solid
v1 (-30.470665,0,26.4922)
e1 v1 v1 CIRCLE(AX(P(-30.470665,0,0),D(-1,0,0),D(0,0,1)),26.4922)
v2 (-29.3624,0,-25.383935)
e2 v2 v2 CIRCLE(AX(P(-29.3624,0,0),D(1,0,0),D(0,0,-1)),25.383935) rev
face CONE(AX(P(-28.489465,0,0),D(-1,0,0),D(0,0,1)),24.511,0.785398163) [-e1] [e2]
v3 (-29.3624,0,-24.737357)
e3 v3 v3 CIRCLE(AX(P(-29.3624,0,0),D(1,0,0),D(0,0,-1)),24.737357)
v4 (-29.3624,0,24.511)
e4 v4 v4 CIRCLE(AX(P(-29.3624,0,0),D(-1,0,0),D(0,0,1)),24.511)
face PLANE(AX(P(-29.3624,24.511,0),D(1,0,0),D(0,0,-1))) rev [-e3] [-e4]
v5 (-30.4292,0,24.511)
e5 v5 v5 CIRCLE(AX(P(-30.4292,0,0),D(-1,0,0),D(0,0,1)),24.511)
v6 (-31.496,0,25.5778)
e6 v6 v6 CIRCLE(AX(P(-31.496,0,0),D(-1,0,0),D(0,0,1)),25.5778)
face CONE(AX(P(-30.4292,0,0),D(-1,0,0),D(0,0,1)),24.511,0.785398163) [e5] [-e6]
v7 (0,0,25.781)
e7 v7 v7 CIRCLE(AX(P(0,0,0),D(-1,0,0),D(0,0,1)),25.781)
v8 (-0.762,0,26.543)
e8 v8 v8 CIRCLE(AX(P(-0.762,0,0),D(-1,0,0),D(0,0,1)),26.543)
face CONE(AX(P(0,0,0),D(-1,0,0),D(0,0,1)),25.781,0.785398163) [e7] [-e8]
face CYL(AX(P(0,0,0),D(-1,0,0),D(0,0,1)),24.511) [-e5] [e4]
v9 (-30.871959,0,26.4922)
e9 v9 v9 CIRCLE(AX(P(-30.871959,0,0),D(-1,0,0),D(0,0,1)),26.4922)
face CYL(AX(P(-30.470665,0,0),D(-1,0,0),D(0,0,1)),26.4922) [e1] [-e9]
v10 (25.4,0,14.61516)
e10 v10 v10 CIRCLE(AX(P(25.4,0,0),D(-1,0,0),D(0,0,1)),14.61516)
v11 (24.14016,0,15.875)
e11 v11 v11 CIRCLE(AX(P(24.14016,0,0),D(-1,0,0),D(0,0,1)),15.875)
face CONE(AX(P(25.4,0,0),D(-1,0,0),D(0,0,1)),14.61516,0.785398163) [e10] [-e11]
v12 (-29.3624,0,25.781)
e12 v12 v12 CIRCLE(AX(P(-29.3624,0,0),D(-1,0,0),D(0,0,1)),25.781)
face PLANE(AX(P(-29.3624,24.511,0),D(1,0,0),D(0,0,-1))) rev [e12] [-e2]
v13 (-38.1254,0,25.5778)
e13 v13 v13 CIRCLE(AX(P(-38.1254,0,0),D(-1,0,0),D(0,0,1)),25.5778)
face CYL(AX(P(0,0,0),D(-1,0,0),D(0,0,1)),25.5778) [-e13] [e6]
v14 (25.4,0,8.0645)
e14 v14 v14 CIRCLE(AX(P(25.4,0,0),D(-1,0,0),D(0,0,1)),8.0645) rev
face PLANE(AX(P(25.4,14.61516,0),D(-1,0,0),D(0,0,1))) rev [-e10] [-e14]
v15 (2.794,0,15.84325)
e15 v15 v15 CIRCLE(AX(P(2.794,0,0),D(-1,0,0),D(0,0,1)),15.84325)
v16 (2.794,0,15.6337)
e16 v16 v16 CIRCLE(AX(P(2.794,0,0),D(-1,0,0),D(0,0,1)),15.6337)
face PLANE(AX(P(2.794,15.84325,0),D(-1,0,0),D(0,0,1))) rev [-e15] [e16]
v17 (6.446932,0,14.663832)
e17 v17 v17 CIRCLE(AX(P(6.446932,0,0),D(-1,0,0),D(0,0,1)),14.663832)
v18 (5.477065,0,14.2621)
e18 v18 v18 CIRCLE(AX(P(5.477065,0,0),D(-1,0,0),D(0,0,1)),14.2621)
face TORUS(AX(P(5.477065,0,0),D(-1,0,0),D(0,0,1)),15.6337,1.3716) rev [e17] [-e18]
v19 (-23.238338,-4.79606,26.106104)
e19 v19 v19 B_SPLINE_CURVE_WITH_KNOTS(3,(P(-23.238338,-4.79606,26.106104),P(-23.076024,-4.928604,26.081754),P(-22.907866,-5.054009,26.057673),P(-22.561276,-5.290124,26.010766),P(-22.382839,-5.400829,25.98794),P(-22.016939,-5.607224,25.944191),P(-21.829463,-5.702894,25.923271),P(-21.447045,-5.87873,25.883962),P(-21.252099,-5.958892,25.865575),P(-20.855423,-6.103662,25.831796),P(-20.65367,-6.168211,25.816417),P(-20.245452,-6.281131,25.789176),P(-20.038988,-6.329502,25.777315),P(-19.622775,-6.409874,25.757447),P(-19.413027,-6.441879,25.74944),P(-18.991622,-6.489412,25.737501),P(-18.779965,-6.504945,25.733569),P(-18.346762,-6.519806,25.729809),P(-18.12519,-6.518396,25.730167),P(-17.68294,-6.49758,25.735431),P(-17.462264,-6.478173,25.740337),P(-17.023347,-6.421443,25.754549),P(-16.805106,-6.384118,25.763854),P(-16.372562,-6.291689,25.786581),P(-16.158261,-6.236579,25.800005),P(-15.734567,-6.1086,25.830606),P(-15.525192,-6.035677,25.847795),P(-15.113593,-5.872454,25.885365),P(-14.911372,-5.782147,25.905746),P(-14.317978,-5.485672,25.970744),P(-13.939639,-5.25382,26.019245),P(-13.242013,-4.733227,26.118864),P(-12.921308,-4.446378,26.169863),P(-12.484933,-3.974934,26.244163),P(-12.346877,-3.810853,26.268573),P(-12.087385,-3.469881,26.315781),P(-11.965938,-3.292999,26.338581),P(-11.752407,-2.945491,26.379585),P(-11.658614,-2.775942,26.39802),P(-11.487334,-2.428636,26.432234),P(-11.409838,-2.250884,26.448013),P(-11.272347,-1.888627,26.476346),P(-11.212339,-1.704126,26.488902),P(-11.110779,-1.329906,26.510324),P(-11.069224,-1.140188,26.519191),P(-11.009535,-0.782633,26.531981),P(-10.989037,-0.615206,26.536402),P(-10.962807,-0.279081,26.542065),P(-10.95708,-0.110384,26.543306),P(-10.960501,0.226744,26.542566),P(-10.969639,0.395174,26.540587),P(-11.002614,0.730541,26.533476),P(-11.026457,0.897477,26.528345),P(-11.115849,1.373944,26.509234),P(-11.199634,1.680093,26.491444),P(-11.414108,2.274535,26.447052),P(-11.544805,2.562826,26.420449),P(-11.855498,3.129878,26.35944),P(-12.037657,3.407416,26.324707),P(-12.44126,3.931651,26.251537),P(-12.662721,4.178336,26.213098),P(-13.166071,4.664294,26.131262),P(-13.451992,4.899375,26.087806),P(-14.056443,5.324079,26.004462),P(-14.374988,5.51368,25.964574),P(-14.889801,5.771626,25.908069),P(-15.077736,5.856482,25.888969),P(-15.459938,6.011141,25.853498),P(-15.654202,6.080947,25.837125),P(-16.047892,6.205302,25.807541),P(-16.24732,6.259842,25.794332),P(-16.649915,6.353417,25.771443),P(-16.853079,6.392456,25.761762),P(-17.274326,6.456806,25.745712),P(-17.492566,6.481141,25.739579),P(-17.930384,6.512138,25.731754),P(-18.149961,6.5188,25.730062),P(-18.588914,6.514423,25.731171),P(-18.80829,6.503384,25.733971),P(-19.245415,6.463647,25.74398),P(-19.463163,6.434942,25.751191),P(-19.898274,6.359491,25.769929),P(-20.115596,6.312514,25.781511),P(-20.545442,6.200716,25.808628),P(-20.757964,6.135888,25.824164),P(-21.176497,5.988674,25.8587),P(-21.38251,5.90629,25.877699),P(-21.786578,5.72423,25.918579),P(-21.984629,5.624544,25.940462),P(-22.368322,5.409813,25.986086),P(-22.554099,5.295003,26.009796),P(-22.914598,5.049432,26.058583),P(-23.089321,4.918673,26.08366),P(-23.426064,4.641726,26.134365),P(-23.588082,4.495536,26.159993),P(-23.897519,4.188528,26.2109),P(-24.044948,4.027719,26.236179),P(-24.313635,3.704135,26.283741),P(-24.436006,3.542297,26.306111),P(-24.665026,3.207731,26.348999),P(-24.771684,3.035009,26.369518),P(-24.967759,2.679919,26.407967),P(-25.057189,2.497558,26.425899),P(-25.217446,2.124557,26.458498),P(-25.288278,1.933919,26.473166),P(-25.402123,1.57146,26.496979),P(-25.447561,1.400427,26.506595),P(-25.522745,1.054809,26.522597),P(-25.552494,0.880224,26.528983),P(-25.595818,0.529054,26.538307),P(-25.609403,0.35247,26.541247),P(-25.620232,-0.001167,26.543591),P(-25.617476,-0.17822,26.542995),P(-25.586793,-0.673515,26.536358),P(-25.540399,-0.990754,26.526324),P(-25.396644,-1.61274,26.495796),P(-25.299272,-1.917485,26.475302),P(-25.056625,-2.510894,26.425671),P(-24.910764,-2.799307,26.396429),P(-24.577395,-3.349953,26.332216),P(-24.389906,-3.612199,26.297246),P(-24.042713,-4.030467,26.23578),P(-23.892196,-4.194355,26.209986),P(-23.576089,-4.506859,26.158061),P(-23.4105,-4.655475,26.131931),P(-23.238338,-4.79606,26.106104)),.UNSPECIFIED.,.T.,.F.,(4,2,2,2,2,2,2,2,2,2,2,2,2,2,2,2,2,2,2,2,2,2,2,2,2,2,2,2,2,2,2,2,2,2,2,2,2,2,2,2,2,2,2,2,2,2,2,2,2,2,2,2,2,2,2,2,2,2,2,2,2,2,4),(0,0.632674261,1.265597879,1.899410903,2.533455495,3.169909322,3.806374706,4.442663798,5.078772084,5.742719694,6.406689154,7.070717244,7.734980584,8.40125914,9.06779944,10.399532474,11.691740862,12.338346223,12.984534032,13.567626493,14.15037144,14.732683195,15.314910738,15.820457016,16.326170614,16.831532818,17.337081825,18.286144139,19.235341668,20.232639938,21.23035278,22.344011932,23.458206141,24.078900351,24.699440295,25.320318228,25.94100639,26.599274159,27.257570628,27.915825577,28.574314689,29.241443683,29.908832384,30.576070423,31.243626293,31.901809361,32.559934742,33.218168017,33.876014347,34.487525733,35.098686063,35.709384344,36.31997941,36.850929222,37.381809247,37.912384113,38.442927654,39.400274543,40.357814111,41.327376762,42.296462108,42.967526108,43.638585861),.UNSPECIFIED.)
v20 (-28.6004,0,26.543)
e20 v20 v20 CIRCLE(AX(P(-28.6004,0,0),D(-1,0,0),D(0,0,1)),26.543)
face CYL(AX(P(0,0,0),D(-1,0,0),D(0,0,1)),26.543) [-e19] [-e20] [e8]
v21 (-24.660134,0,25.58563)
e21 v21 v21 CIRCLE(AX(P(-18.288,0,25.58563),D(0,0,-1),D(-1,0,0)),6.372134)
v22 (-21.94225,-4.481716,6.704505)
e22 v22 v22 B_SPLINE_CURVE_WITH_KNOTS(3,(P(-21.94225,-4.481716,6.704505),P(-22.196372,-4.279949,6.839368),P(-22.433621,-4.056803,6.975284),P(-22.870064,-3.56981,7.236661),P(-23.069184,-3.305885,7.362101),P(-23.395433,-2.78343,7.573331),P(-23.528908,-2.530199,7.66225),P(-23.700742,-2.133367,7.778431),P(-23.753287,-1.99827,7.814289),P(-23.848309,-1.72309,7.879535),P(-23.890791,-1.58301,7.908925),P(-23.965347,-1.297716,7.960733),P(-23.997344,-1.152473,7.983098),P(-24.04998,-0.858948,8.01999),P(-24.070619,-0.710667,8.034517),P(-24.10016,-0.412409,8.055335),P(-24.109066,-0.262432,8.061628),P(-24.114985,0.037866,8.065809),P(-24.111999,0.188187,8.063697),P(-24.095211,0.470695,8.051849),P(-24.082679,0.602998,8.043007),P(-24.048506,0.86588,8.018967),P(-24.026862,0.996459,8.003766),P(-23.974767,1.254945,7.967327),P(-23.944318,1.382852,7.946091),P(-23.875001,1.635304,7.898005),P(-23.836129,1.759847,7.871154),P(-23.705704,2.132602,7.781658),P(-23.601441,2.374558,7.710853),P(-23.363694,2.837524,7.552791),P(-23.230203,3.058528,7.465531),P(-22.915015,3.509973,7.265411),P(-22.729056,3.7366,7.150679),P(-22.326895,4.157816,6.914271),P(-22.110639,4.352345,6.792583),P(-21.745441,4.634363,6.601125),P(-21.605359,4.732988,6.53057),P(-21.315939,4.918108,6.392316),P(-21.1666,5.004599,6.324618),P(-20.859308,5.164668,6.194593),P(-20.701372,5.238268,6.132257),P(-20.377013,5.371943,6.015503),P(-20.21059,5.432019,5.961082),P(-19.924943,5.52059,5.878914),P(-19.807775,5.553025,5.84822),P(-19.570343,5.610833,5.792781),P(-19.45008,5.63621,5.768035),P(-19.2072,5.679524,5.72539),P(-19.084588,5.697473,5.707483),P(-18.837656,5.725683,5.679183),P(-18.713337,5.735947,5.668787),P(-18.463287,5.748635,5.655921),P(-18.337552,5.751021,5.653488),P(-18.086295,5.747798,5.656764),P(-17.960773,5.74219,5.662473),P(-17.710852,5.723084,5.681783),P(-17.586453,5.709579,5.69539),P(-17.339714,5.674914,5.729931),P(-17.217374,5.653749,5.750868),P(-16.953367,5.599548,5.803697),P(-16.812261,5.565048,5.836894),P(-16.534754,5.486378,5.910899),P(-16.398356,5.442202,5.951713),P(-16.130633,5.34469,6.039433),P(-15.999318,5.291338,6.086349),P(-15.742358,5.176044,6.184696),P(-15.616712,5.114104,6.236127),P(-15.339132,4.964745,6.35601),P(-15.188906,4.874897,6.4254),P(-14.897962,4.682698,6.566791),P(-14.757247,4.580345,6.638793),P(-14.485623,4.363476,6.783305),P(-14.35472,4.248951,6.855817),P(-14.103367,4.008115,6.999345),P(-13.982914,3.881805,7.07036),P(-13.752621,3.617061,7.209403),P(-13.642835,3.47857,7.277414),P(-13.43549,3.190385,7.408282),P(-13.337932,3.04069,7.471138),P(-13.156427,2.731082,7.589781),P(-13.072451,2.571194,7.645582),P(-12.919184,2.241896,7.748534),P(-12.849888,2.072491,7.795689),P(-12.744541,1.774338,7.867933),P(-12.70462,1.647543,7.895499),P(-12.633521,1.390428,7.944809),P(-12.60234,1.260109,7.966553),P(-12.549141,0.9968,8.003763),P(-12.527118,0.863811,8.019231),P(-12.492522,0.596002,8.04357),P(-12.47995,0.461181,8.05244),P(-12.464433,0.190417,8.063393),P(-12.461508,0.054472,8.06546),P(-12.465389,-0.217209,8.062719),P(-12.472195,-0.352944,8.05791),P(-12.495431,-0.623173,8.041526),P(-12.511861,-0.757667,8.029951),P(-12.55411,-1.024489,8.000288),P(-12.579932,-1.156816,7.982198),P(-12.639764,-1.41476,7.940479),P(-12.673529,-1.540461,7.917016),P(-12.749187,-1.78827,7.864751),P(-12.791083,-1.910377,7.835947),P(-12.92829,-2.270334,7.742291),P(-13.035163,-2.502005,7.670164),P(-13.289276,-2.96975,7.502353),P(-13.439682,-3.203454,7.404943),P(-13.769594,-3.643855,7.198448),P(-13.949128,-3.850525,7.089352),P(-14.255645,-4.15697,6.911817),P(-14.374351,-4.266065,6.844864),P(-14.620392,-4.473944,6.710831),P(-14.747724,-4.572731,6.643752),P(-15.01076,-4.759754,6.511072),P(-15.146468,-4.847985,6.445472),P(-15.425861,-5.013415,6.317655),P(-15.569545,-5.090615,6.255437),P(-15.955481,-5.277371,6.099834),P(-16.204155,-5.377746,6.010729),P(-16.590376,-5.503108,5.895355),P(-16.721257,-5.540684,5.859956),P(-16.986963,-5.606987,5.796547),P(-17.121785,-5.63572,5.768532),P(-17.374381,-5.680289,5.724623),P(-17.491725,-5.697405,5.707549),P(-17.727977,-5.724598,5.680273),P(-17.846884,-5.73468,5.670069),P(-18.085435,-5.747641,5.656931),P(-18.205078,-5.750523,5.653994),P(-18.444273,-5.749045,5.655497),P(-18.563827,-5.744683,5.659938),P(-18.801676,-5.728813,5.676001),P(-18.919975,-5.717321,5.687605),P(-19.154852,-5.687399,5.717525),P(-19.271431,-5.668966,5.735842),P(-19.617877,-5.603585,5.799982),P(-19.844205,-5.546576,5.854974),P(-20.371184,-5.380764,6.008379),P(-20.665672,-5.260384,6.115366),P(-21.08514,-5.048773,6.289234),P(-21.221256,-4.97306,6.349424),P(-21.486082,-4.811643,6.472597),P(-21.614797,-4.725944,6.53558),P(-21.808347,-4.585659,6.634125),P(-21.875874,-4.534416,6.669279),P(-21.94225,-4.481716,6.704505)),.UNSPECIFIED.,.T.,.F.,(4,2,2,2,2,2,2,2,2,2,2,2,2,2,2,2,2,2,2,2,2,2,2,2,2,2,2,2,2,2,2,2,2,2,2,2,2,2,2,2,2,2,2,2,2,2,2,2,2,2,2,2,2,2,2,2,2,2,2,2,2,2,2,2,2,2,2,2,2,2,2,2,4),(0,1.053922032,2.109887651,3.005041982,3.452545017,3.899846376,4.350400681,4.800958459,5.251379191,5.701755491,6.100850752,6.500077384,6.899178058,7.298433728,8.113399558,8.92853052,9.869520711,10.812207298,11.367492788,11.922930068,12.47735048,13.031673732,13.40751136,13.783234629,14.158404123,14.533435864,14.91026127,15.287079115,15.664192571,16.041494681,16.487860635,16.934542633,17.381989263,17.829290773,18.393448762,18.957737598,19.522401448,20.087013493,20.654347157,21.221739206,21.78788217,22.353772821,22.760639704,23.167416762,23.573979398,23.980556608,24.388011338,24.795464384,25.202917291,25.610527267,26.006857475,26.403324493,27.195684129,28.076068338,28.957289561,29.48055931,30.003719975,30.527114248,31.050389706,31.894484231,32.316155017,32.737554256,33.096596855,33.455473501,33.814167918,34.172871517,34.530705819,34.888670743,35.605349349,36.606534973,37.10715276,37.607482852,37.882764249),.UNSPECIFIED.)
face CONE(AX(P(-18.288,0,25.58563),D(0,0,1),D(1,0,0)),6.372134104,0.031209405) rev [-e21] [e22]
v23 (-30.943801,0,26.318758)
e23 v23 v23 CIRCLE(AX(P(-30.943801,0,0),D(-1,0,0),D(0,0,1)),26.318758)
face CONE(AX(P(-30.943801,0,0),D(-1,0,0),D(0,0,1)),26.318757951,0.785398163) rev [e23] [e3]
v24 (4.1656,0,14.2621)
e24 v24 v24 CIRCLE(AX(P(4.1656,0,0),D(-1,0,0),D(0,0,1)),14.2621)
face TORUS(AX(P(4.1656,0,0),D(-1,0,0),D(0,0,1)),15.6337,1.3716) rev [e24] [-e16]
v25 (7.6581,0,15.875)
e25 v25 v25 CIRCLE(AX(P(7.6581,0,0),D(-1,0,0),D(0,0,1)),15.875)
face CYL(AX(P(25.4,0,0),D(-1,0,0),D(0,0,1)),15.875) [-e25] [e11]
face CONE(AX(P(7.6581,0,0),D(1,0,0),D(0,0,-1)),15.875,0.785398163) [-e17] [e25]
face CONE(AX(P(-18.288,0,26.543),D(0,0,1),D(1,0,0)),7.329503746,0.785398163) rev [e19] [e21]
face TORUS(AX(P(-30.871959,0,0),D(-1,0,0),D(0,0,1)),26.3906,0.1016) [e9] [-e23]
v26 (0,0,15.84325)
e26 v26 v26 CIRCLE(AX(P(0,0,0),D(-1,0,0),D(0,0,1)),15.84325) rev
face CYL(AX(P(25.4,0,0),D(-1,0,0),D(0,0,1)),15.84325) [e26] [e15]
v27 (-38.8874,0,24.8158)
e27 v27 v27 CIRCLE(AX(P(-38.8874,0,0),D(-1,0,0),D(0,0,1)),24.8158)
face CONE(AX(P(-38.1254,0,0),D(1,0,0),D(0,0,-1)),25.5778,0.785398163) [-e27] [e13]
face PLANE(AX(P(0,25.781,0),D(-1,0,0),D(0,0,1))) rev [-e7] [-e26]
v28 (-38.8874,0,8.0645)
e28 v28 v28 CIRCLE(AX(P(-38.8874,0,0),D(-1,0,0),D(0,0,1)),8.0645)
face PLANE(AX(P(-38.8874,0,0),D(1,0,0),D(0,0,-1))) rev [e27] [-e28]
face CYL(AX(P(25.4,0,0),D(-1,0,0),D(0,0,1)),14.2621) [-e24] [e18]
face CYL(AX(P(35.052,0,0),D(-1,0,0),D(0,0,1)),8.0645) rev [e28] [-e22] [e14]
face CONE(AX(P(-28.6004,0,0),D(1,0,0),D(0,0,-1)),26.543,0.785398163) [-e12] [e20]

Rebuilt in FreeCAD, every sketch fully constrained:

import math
import FreeCAD as App
import Part
import Sketcher
Q = App.Units.Quantity


def add_polygon(sketch, points):
    """Adds a closed chain of lines whose ends are joined by coincident constraints."""
    first, n = sketch.GeometryCount, len(points)
    for a, b in zip(points, points[1:] + points[:1]):
        sketch.addGeometry(Part.LineSegment(App.Vector(*a, 0), App.Vector(*b, 0)), False)
    for i in range(n):
        sketch.addConstraint(Sketcher.Constraint("Coincident", first + i, 2, first + (i + 1) % n, 1))

doc = App.newDocument("Part")
body = doc.addObject("PartDesign::Body", "Body")

# Sketch on XY plane
sketch1 = body.newObject("Sketcher::SketchObject", "Sketch")
sketch1.AttachmentSupport = (doc.getObject("XY_Plane"), [""])
sketch1.MapMode = "FlatFace"
add_polygon(sketch1, [(-38.8874, 24.8158), (-38.8874, 0), (0, 0), (0, 25.781), (-0.762, 26.543), (-28.6004, 26.543), (-29.3624, 25.781), (-29.3624, 24.511), (-30.4292, 24.511), (-31.496, 25.5778), (-38.1254, 25.5778)])  # lines 0-10
sketch1.addConstraint([
    Sketcher.Constraint("Vertical", 0),
    Sketcher.Constraint("Horizontal", 1),
    Sketcher.Constraint("Vertical", 2),
    Sketcher.Constraint("Horizontal", 4),
    Sketcher.Constraint("Vertical", 6),
    Sketcher.Constraint("Horizontal", 7),
    Sketcher.Constraint("Horizontal", 9),
    Sketcher.Constraint("Coincident", 1, 2, -1, 1),
    Sketcher.Constraint("Perpendicular", 3, 5),
    Sketcher.Constraint("Perpendicular", 5, 8),
    Sketcher.Constraint("Perpendicular", 8, 10),
    Sketcher.Constraint("Horizontal", 2, 2, 5, 2),
    Sketcher.Constraint("Equal", 3, 5),
    Sketcher.Constraint("Equal", 5, 10),
    Sketcher.Constraint("DistanceY", 6, 2, 6, 1, Q("0.05 in")),
    Sketcher.Constraint("DistanceX", 1, 1, 1, 2, Q("1.531 in")),
    Sketcher.Constraint("DistanceX", 4, 2, 4, 1, Q("1.096 in")),
    Sketcher.Constraint("DistanceX", 7, 2, 7, 1, Q("0.042 in")),
    Sketcher.Constraint("DistanceX", 9, 2, 9, 1, Q("0.261 in")),
    Sketcher.Constraint("DistanceY", 0, 2, 0, 1, Q("0.977 in")),
    Sketcher.Constraint("DistanceY", 2, 1, 2, 2, Q("1.015 in")),
])
revolution = body.newObject("PartDesign::Revolution", "Revolution")
revolution.Profile = sketch1
revolution.ReferenceAxis = (sketch1, ["H_Axis"])
revolution.Angle = 360

# Sketch on XY plane
sketch2 = body.newObject("Sketcher::SketchObject", "Sketch001")
sketch2.AttachmentSupport = (doc.getObject("XY_Plane"), [""])
sketch2.MapMode = "FlatFace"
sketch2.addGeometry([
    Part.LineSegment(App.Vector(0, 15.84325, 0), App.Vector(0, 0, 0)),  # 0
    Part.LineSegment(App.Vector(0, 0, 0), App.Vector(25.4, 0, 0)),  # 1
    Part.LineSegment(App.Vector(25.4, 0, 0), App.Vector(25.4, 14.61516, 0)),  # 2
    Part.LineSegment(App.Vector(25.4, 14.61516, 0), App.Vector(24.14016, 15.875, 0)),  # 3
    Part.LineSegment(App.Vector(24.14016, 15.875, 0), App.Vector(7.6581, 15.875, 0)),  # 4
    Part.LineSegment(App.Vector(7.6581, 15.875, 0), App.Vector(6.446932, 14.663832, 0)),  # 5
    Part.ArcOfCircle(Part.Circle(App.Vector(5.477065, 15.6337, 0), App.Vector(0, 0, 1), 1.3716), math.radians(-90), math.radians(-45)),  # 6
    Part.LineSegment(App.Vector(5.477065, 14.2621, 0), App.Vector(4.1656, 14.2621, 0)),  # 7
    Part.ArcOfCircle(Part.Circle(App.Vector(4.1656, 15.6337, 0), App.Vector(0, 0, 1), 1.3716), math.radians(180), math.radians(270)),  # 8
    Part.LineSegment(App.Vector(2.794, 15.6337, 0), App.Vector(2.794, 15.84325, 0)),  # 9
    Part.LineSegment(App.Vector(2.794, 15.84325, 0), App.Vector(0, 15.84325, 0)),  # 10
], False)
sketch2.addConstraint([
    Sketcher.Constraint("Coincident", 0, 2, 1, 1),
    Sketcher.Constraint("Coincident", 1, 2, 2, 1),
    Sketcher.Constraint("Coincident", 2, 2, 3, 1),
    Sketcher.Constraint("Coincident", 3, 2, 4, 1),
    Sketcher.Constraint("Coincident", 4, 2, 5, 1),
    Sketcher.Constraint("Tangent", 5, 2, 6, 2),
    Sketcher.Constraint("Tangent", 6, 1, 7, 1),
    Sketcher.Constraint("Tangent", 7, 2, 8, 2),
    Sketcher.Constraint("Tangent", 8, 1, 9, 1),
    Sketcher.Constraint("Coincident", 9, 2, 10, 1),
    Sketcher.Constraint("Coincident", 10, 2, 0, 1),
    Sketcher.Constraint("Vertical", 0),
    Sketcher.Constraint("Horizontal", 1),
    Sketcher.Constraint("Vertical", 2),
    Sketcher.Constraint("Horizontal", 4),
    Sketcher.Constraint("Horizontal", 7),
    Sketcher.Constraint("Vertical", 9),
    Sketcher.Constraint("Horizontal", 10),
    Sketcher.Constraint("Coincident", 0, 2, -1, 1),
    Sketcher.Constraint("Equal", 6, 8),
    Sketcher.Constraint("Perpendicular", 3, 5),
    Sketcher.Constraint("DistanceX", 1, 1, 1, 2, Q("1 in")),
    Sketcher.Constraint("Angle", 3, Q("135 deg")),
    Sketcher.Constraint("Radius", 6, Q("0.054 in")),
    Sketcher.Constraint("DistanceX", 10, 2, 10, 1, Q("0.11 in")),
    Sketcher.Constraint("DistanceX", 4, 2, 4, 1, Q("0.6489 in")),
    Sketcher.Constraint("DistanceY", 2, 1, 2, 2, Q("0.5754 in")),
    Sketcher.Constraint("DistanceY", -1, 1, 3, 2, Q("0.625 in")),
    Sketcher.Constraint("DistanceY", -1, 1, 6, 3, Q("0.6155 in")),
    Sketcher.Constraint("DistanceY", 0, 2, 0, 1, Q("15.84325 mm")),
])
revolution2 = body.newObject("PartDesign::Revolution", "Revolution001")
revolution2.Profile = sketch2
revolution2.ReferenceAxis = (sketch2, ["H_Axis"])
revolution2.Angle = 360

# Sketch on XZ plane
sketch3 = body.newObject("Sketcher::SketchObject", "Sketch002")
sketch3.AttachmentSupport = (doc.getObject("XZ_Plane"), [""])
sketch3.MapMode = "FlatFace"
add_polygon(sketch3, [(-12.612336, 3.276846), (-18.288, 0), (-18.288, 29.083), (-10.958496, 29.083), (-10.958496, 26.543), (-11.915866, 25.58563)])  # lines 0-5
sketch3.addGeometry(Part.LineSegment(App.Vector(-18.288, 29.083, 0), App.Vector(-18.288, 0, 0)), True)  # axis
sketch3.addConstraint([
    Sketcher.Constraint("Vertical", 1),
    Sketcher.Constraint("Horizontal", 2),
    Sketcher.Constraint("Vertical", 3),
    Sketcher.Constraint("Vertical", 6),
    Sketcher.Constraint("Coincident", 6, 1, 1, 2),
    Sketcher.Constraint("PointOnObject", 0, 2, -1),
    Sketcher.Constraint("PointOnObject", 6, 2, -1),
    Sketcher.Constraint("DistanceY", 3, 2, 3, 1, Q("0.1 in")),
    Sketcher.Constraint("Angle", 0, Q("-150 deg")),
    Sketcher.Constraint("Angle", 4, Q("-135 deg")),
    Sketcher.Constraint("DistanceY", 1, 1, 1, 2, Q("1.145 in")),
    Sketcher.Constraint("DistanceX", 0, 2, -1, 1, Q("0.72 in")),
    Sketcher.Constraint("DistanceX", 2, 1, 2, 2, Q("7.329504 mm")),
    Sketcher.Constraint("DistanceY", -1, 1, 4, 2, Q("25.58563 mm")),
    Sketcher.Constraint("DistanceX", 5, 2, 4, 2, Q("0.69647 mm")),
])
groove = body.newObject("PartDesign::Groove", "Groove")
groove.Profile = sketch3
groove.ReferenceAxis = (sketch3, ["Axis0"])
groove.Angle = 360

# Sketch on XY plane
sketch4 = body.newObject("Sketcher::SketchObject", "Sketch003")
sketch4.AttachmentSupport = (doc.getObject("XY_Plane"), [""])
sketch4.MapMode = "FlatFace"
sketch4.addGeometry([
    Part.LineSegment(App.Vector(-30.943801, 26.318758, 0), App.Vector(-28.812754, 24.187711, 0)),  # 0
    Part.LineSegment(App.Vector(-28.812754, 24.187711, 0), App.Vector(-28.489465, 24.511, 0)),  # 1
    Part.LineSegment(App.Vector(-28.489465, 24.511, 0), App.Vector(-30.470665, 26.4922, 0)),  # 2
    Part.LineSegment(App.Vector(-30.470665, 26.4922, 0), App.Vector(-30.871959, 26.4922, 0)),  # 3
    Part.ArcOfCircle(Part.Circle(App.Vector(-30.871959, 26.3906, 0), App.Vector(0, 0, 1), 0.1016), math.radians(90.000001), math.radians(225)),  # 4
], False)
sketch4.addConstraint([
    Sketcher.Constraint("Coincident", 0, 2, 1, 1),
    Sketcher.Constraint("Coincident", 1, 2, 2, 1),
    Sketcher.Constraint("Coincident", 2, 2, 3, 1),
    Sketcher.Constraint("Tangent", 3, 2, 4, 1),
    Sketcher.Constraint("Tangent", 4, 2, 0, 1),
    Sketcher.Constraint("Horizontal", 3),
    Sketcher.Constraint("Perpendicular", 0, 1),
    Sketcher.Constraint("Perpendicular", 1, 2),
    Sketcher.Constraint("Angle", 0, Q("-45 deg")),
    Sketcher.Constraint("Radius", 4, Q("0.004 in")),
    Sketcher.Constraint("Distance", 1, Q("0.018 in")),
    Sketcher.Constraint("DistanceY", -1, 1, 4, 3, Q("1.039 in")),
    Sketcher.Constraint("DistanceY", -1, 1, 1, 2, Q("0.965 in")),
    Sketcher.Constraint("DistanceX", 4, 2, -1, 1, Q("30.943801 mm")),
])
revolution3 = body.newObject("PartDesign::Revolution", "Revolution002")
revolution3.Profile = sketch4
revolution3.ReferenceAxis = (sketch4, ["H_Axis"])
revolution3.Angle = 360

# Sketch on XY plane
sketch5 = body.newObject("Sketcher::SketchObject", "Sketch004")
sketch5.AttachmentSupport = (doc.getObject("XY_Plane"), [""])
sketch5.MapMode = "FlatFace"
add_polygon(sketch5, [(-38.8874, 8.0645), (-38.8874, 0), (35.052, 0), (35.052, 8.0645)])  # lines 0-3
sketch5.addConstraint([
    Sketcher.Constraint("Vertical", 0),
    Sketcher.Constraint("Horizontal", 1),
    Sketcher.Constraint("Vertical", 2),
    Sketcher.Constraint("Horizontal", 3),
    Sketcher.Constraint("PointOnObject", 0, 2, -1),
    Sketcher.Constraint("DistanceX", 1, 1, 1, 2, Q("2.911 in")),
    Sketcher.Constraint("DistanceX", -1, 1, 1, 2, Q("1.38 in")),
    Sketcher.Constraint("DistanceY", 0, 2, 0, 1, Q("0.3175 in")),
])
groove2 = body.newObject("PartDesign::Groove", "Groove001")
groove2.Profile = sketch5
groove2.ReferenceAxis = (sketch5, ["H_Axis"])
groove2.Angle = 360

doc.recompute()
